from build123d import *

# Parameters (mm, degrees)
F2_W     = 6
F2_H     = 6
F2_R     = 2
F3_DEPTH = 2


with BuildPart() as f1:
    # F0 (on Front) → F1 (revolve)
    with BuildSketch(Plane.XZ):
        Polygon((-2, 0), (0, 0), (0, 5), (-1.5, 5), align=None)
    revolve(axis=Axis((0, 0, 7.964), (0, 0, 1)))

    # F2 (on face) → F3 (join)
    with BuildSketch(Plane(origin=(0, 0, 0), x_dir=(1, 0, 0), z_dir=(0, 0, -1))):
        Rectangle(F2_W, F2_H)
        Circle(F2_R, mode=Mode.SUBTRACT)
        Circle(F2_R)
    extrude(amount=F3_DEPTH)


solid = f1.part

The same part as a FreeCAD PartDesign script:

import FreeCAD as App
import Part
import Sketcher
from FreeCAD import Vector
Q = App.Units.Quantity

doc = App.newDocument("Part")
body = doc.addObject("PartDesign::Body", "Body")

# Sketch on XZ plane
sketch1 = body.newObject("Sketcher::SketchObject", "Sketch")
sketch1.AttachmentSupport = (doc.getObject("XZ_Plane"), [""])
sketch1.MapMode = "FlatFace"
sketch1.addGeometry(Part.LineSegment(Vector(-2, 0, 0), Vector(0, 0, 0)), False)
sketch1.addGeometry(Part.LineSegment(Vector(0, 0, 0), Vector(0, 5, 0)), False)
sketch1.addGeometry(Part.LineSegment(Vector(0, 5, 0), Vector(-1.5, 5, 0)), False)
sketch1.addGeometry(Part.LineSegment(Vector(-1.5, 5, 0), Vector(-2, 0, 0)), False)
sketch1.addConstraint(Sketcher.Constraint("Coincident", 0, 2, 1, 1))
sketch1.addConstraint(Sketcher.Constraint("Coincident", 1, 2, 2, 1))
sketch1.addConstraint(Sketcher.Constraint("Coincident", 2, 2, 3, 1))
sketch1.addConstraint(Sketcher.Constraint("Coincident", 3, 2, 0, 1))
sketch1.addConstraint(Sketcher.Constraint("Horizontal", 0))
sketch1.addConstraint(Sketcher.Constraint("Vertical", 1))
sketch1.addConstraint(Sketcher.Constraint("Horizontal", 2))
sketch1.addConstraint(Sketcher.Constraint("Coincident", 0, 2, -1, 1))
sketch1.addConstraint(Sketcher.Constraint("DistanceX", 0, 1, 0, 2, Q("2 mm")))
sketch1.addConstraint(Sketcher.Constraint("DistanceY", 1, 1, 1, 2, Q("5 mm")))
sketch1.addConstraint(Sketcher.Constraint("DistanceX", 2, 2, 2, 1, Q("1.5 mm")))
revolution = body.newObject("PartDesign::Revolution", "Revolution")
revolution.Profile = sketch1
revolution.ReferenceAxis = (sketch1, ["V_Axis"])
revolution.Angle = 360

# Sketch on XY plane
sketch2 = body.newObject("Sketcher::SketchObject", "Sketch001")
sketch2.AttachmentSupport = (doc.getObject("XY_Plane"), [""])
sketch2.MapMode = "FlatFace"
sketch2.addGeometry(Part.LineSegment(Vector(-3, -3, 0), Vector(-3, 3, 0)), False)
sketch2.addGeometry(Part.LineSegment(Vector(-3, 3, 0), Vector(3, 3, 0)), False)
sketch2.addGeometry(Part.LineSegment(Vector(3, 3, 0), Vector(3, -3, 0)), False)
sketch2.addGeometry(Part.LineSegment(Vector(3, -3, 0), Vector(-3, -3, 0)), False)
sketch2.addConstraint(Sketcher.Constraint("Coincident", 0, 2, 1, 1))
sketch2.addConstraint(Sketcher.Constraint("Coincident", 1, 2, 2, 1))
sketch2.addConstraint(Sketcher.Constraint("Coincident", 2, 2, 3, 1))
sketch2.addConstraint(Sketcher.Constraint("Coincident", 3, 2, 0, 1))
sketch2.addConstraint(Sketcher.Constraint("Vertical", 0))
sketch2.addConstraint(Sketcher.Constraint("Horizontal", 1))
sketch2.addConstraint(Sketcher.Constraint("Vertical", 2))
sketch2.addConstraint(Sketcher.Constraint("Horizontal", 3))
sketch2.addConstraint(Sketcher.Constraint("Symmetric", 0, 2, 2, 2, -1, 1))
sketch2.addConstraint(Sketcher.Constraint("Equal", 3, 0))
sketch2.addConstraint(Sketcher.Constraint("DistanceX", 1, 1, 1, 2, Q("6 mm")))
pad1 = body.newObject("PartDesign::Pad", "Pad")
pad1.Profile = sketch2
pad1.Length = 2
pad1.Reversed = True

doc.recompute()
